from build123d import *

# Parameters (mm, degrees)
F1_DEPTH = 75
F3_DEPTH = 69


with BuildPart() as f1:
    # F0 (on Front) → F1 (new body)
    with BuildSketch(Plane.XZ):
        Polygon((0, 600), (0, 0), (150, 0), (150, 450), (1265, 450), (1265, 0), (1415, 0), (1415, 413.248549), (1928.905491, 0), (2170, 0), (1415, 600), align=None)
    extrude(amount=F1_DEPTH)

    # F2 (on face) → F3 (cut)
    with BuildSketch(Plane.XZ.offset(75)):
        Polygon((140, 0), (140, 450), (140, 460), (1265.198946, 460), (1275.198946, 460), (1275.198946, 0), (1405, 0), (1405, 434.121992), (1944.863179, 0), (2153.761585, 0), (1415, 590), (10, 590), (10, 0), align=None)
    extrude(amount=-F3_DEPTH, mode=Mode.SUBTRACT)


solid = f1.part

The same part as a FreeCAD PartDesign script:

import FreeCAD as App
import Part
import Sketcher
from FreeCAD import Vector


def add_polygon(sketch, points):
    """Adds a closed chain of lines whose ends are joined by coincident constraints."""
    first, n = sketch.GeometryCount, len(points)
    for a, b in zip(points, points[1:] + points[:1]):
        sketch.addGeometry(Part.LineSegment(App.Vector(*a, 0), App.Vector(*b, 0)), False)
    for i in range(n):
        sketch.addConstraint(Sketcher.Constraint("Coincident", first + i, 2, first + (i + 1) % n, 1))

doc = App.newDocument("Part")
body = doc.addObject("PartDesign::Body", "Body")

sketch1 = doc.addObject("Sketcher::SketchObject", "Sketch")
body.addObject(sketch1)
sketch1.AttachmentSupport = (doc.XZ_Plane, [""])
sketch1.MapMode = "FlatFace"
add_polygon(sketch1, [(0, 600), (0, 0), (150, 0), (150, 450), (1265, 450), (1265, 0), (1415, 0), (1415, 413), (1929, 0), (2170, 0), (1415, 600)])
sketch1.addConstraint([
    Sketcher.Constraint("Vertical", 0),
    Sketcher.Constraint("Horizontal", 1),
    Sketcher.Constraint("Vertical", 2),
    Sketcher.Constraint("Horizontal", 3),
    Sketcher.Constraint("Vertical", 4),
    Sketcher.Constraint("Horizontal", 5),
    Sketcher.Constraint("Vertical", 6),
    Sketcher.Constraint("Horizontal", 8),
    Sketcher.Constraint("Horizontal", 10),
    Sketcher.Constraint("Coincident", 0, 2, -1, 1),
    Sketcher.Constraint("PointOnObject", 4, 2, -1),
    Sketcher.Constraint("PointOnObject", 7, 2, -1),
    Sketcher.Constraint("Vertical", 6, 2, 9, 2),
    Sketcher.Constraint("Equal", 1, 5),
    Sketcher.Constraint("DistanceX", 1, 1, 1, 2, 150.0),
    Sketcher.Constraint("DistanceX", 3, 1, 3, 2, 1115.0),
    Sketcher.Constraint("DistanceY", 0, 2, 0, 1, 600.0),
    Sketcher.Constraint("DistanceY", 2, 1, 2, 2, 450.0),
    Sketcher.Constraint("DistanceX", -1, 1, 8, 2, 2170.0),
    Sketcher.Constraint("DistanceX", 8, 1, 8, 2, 241.094509),
    Sketcher.Constraint("DistanceY", 6, 1, 6, 2, 413.248549),
])
pad1 = doc.addObject("PartDesign::Pad", "Pad")
body.addObject(pad1)
pad1.Profile = sketch1
pad1.Length = 75

sketch2 = doc.addObject("Sketcher::SketchObject", "Sketch001")
body.addObject(sketch2)
sketch2.AttachmentSupport = (doc.XZ_Plane, [""])
sketch2.MapMode = "FlatFace"
sketch2.AttachmentOffset = App.Placement(Vector(0, 0, 75), App.Rotation())
add_polygon(sketch2, [(140, 0), (140, 460), (1275, 460), (1275, 0), (1405, 0), (1405, 434), (1945, 0), (2154, 0), (1415, 590), (10, 590), (10, 0)])
sketch2.addConstraint([
    Sketcher.Constraint("Vertical", 0),
    Sketcher.Constraint("Horizontal", 1),
    Sketcher.Constraint("Vertical", 2),
    Sketcher.Constraint("Horizontal", 3),
    Sketcher.Constraint("Vertical", 4),
    Sketcher.Constraint("Horizontal", 6),
    Sketcher.Constraint("Horizontal", 8),
    Sketcher.Constraint("Vertical", 9),
    Sketcher.Constraint("Horizontal", 10),
    Sketcher.Constraint("PointOnObject", 2, 2, -1),
    Sketcher.Constraint("PointOnObject", 5, 2, -1),
    Sketcher.Constraint("PointOnObject", 9, 2, -1),
    Sketcher.Constraint("DistanceX", 8, 2, 8, 1, 1405.0),
    Sketcher.Constraint("DistanceX", 10, 1, 10, 2, 130.0),
    Sketcher.Constraint("DistanceY", 0, 1, 0, 2, 460.0),
    Sketcher.Constraint("DistanceY", 9, 2, 9, 1, 590.0),
    Sketcher.Constraint("DistanceX", -1, 1, 0, 2, 140.0),
    Sketcher.Constraint("DistanceX", -1, 1, 3, 2, 1405.0),
    Sketcher.Constraint("DistanceY", 4, 1, 4, 2, 434.121992),
    Sketcher.Constraint("DistanceX", 1, 1, 1, 2, 1135.198946),
    Sketcher.Constraint("DistanceX", 6, 1, 6, 2, 208.898406),
    Sketcher.Constraint("DistanceX", -1, 1, 5, 2, 1944.863179),
])
pocket1 = doc.addObject("PartDesign::Pocket", "Pocket")
body.addObject(pocket1)
pocket1.Profile = sketch2
pocket1.Length = 69

doc.recompute()
